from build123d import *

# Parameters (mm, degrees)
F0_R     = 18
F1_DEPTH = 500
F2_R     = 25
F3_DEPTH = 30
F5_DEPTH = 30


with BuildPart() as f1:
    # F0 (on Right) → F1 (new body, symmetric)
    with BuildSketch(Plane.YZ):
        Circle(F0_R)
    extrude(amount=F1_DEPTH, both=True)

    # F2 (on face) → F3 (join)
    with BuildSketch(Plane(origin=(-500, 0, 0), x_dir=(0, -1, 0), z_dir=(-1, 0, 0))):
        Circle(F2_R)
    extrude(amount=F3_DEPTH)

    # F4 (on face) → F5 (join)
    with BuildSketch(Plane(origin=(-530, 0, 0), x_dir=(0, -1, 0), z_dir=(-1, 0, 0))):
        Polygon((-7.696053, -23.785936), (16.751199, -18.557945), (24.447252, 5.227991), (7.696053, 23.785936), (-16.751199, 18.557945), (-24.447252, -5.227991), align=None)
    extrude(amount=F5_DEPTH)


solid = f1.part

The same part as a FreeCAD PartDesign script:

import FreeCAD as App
import Part
import Sketcher
from FreeCAD import Vector
Q = App.Units.Quantity

doc = App.newDocument("Part")
body = doc.addObject("PartDesign::Body", "Body")

sketch1 = body.newObject("Sketcher::SketchObject", "Sketch")
sketch1.AttachmentSupport = (doc.getObject("YZ_Plane"), [""])
sketch1.MapMode = "FlatFace"
sketch1.addGeometry(Part.Circle(Vector(0, 0, 0), Vector(0, 0, 1), 18), False)
sketch1.addConstraint([
    Sketcher.Constraint("Coincident", 0, 3, -1, 1),
    Sketcher.Constraint("Diameter", 0, Q("36 mm")),
])
pad1 = body.newObject("PartDesign::Pad", "Pad")
pad1.Profile = sketch1
pad1.Length = 1000
pad1.Midplane = True

sketch2 = body.newObject("Sketcher::SketchObject", "Sketch001")
sketch2.AttachmentSupport = (doc.getObject("YZ_Plane"), [""])
sketch2.MapMode = "FlatFace"
sketch2.AttachmentOffset = App.Placement(Vector(0, 0, -500), App.Rotation())
sketch2.addGeometry(Part.Circle(Vector(0, 0, 0), Vector(0, 0, 1), 25), False)
sketch2.addConstraint([
    Sketcher.Constraint("Coincident", 0, 3, -1, 1),
    Sketcher.Constraint("Diameter", 0, Q("50 mm")),
])
pad2 = body.newObject("PartDesign::Pad", "Pad001")
pad2.Profile = sketch2
pad2.Length = 30
pad2.Reversed = True

sketch3 = body.newObject("Sketcher::SketchObject", "Sketch002")
sketch3.AttachmentSupport = (doc.getObject("YZ_Plane"), [""])
sketch3.MapMode = "FlatFace"
sketch3.AttachmentOffset = App.Placement(Vector(0, 0, -530), App.Rotation())
sketch3.addGeometry([
    Part.LineSegment(Vector(8, -24, 0), Vector(-17, -19, 0)),
    Part.LineSegment(Vector(-17, -19, 0), Vector(-24, 5, 0)),
    Part.LineSegment(Vector(-24, 5, 0), Vector(-8, 24, 0)),
    Part.LineSegment(Vector(-8, 24, 0), Vector(17, 19, 0)),
    Part.LineSegment(Vector(17, 19, 0), Vector(24, -5, 0)),
    Part.LineSegment(Vector(24, -5, 0), Vector(8, -24, 0)),
], False)
sketch3.addConstraint([
    Sketcher.Constraint("Coincident", 0, 2, 1, 1),
    Sketcher.Constraint("Coincident", 1, 2, 2, 1),
    Sketcher.Constraint("Coincident", 2, 2, 3, 1),
    Sketcher.Constraint("Coincident", 3, 2, 4, 1),
    Sketcher.Constraint("Coincident", 4, 2, 5, 1),
    Sketcher.Constraint("Coincident", 5, 2, 0, 1),
    Sketcher.Constraint("Symmetric", 0, 2, 3, 2, -1, 1),
    Sketcher.Constraint("Symmetric", 1, 2, 4, 2, -1, 1),
    Sketcher.Constraint("Symmetric", 2, 2, 5, 2, -1, 1),
    Sketcher.Constraint("Equal", 0, 1),
    Sketcher.Constraint("Equal", 1, 2),
    Sketcher.Constraint("Distance", 0, Q("25 mm")),
    Sketcher.Constraint("DistanceX", 0, 2, -1, 1, Q("16.751199 mm")),
    Sketcher.Constraint("DistanceX", 1, 2, 2, 2, Q("16.751199 mm")),
    Sketcher.Constraint("DistanceX", 1, 2, -1, 1, Q("24.447252 mm")),
])
pad3 = body.newObject("PartDesign::Pad", "Pad002")
pad3.Profile = sketch3
pad3.Length = 30
pad3.Reversed = True

doc.recompute()
